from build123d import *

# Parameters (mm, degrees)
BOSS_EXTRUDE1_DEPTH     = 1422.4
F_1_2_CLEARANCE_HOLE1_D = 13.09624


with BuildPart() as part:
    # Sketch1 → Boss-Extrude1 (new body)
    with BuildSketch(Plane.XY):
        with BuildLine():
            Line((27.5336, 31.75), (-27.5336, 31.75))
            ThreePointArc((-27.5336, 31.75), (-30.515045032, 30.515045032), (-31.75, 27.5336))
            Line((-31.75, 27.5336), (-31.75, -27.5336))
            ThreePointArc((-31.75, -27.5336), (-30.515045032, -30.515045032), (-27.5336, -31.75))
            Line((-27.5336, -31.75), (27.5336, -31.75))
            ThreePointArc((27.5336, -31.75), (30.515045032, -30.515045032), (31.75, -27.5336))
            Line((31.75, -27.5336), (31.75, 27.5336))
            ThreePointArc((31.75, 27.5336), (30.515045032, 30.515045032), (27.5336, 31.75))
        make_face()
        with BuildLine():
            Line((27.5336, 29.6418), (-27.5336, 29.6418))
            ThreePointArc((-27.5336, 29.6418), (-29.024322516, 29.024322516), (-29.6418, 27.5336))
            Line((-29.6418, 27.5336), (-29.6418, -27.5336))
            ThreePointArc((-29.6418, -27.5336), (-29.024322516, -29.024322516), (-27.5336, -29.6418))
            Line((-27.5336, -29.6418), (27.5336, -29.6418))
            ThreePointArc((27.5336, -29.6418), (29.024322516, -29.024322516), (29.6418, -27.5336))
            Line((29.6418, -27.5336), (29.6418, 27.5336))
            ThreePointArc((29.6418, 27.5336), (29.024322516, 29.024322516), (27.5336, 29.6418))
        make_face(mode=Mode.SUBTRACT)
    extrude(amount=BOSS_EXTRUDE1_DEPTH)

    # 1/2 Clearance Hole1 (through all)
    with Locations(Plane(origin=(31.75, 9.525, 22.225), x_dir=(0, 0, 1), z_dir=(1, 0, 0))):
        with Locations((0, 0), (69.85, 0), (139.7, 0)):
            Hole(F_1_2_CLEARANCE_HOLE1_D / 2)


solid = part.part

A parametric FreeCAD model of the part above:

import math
import FreeCAD as App
import Part
import Sketcher
from FreeCAD import Vector
Q = App.Units.Quantity

doc = App.newDocument("Part")
body = doc.addObject("PartDesign::Body", "Body")

# Sketch on XY plane
sketch1 = body.newObject("Sketcher::SketchObject", "Sketch")
sketch1.AttachmentSupport = (doc.getObject("XY_Plane"), [""])
sketch1.MapMode = "FlatFace"
sketch1.addGeometry([
    Part.LineSegment(Vector(27.5, 31.8, 0), Vector(-27.5, 31.8, 0)),  # 0
    Part.ArcOfCircle(Part.Circle(Vector(-27.5, 27.5, 0), Vector(0, 0, 1), 4.2), math.radians(90), math.radians(180)),  # 1
    Part.LineSegment(Vector(-31.8, 27.5, 0), Vector(-31.8, -27.5, 0)),  # 2
    Part.ArcOfCircle(Part.Circle(Vector(-27.5, -27.5, 0), Vector(0, 0, 1), 4.2), math.radians(-180), math.radians(-90)),  # 3
    Part.LineSegment(Vector(-27.5, -31.8, 0), Vector(27.5, -31.8, 0)),  # 4
    Part.ArcOfCircle(Part.Circle(Vector(27.5, -27.5, 0), Vector(0, 0, 1), 4.2), math.radians(-90), math.radians(0)),  # 5
    Part.LineSegment(Vector(31.8, -27.5, 0), Vector(31.8, 27.5, 0)),  # 6
    Part.ArcOfCircle(Part.Circle(Vector(27.5, 27.5, 0), Vector(0, 0, 1), 4.2), math.radians(0), math.radians(90)),  # 7
    Part.LineSegment(Vector(-27.5, 29.6, 0), Vector(27.5, 29.6, 0)),  # 8
    Part.ArcOfCircle(Part.Circle(Vector(27.5, 27.5, 0), Vector(0, 0, 1), 2.1), math.radians(0), math.radians(90)),  # 9
    Part.LineSegment(Vector(29.6, 27.5, 0), Vector(29.6, -27.5, 0)),  # 10
    Part.ArcOfCircle(Part.Circle(Vector(27.5, -27.5, 0), Vector(0, 0, 1), 2.1), math.radians(-90), math.radians(0)),  # 11
    Part.LineSegment(Vector(27.5, -29.6, 0), Vector(-27.5, -29.6, 0)),  # 12
    Part.ArcOfCircle(Part.Circle(Vector(-27.5, -27.5, 0), Vector(0, 0, 1), 2.1), math.radians(180), math.radians(270)),  # 13
    Part.LineSegment(Vector(-29.6, -27.5, 0), Vector(-29.6, 27.5, 0)),  # 14
    Part.ArcOfCircle(Part.Circle(Vector(-27.5, 27.5, 0), Vector(0, 0, 1), 2.1), math.radians(90), math.radians(180)),  # 15
], False)
sketch1.addConstraint([
    Sketcher.Constraint("Tangent", 0, 2, 1, 1),
    Sketcher.Constraint("Tangent", 1, 2, 2, 1),
    Sketcher.Constraint("Tangent", 2, 2, 3, 1),
    Sketcher.Constraint("Tangent", 3, 2, 4, 1),
    Sketcher.Constraint("Tangent", 4, 2, 5, 1),
    Sketcher.Constraint("Tangent", 5, 2, 6, 1),
    Sketcher.Constraint("Tangent", 6, 2, 7, 1),
    Sketcher.Constraint("Tangent", 7, 2, 0, 1),
    Sketcher.Constraint("Tangent", 8, 2, 9, 2),
    Sketcher.Constraint("Tangent", 9, 1, 10, 1),
    Sketcher.Constraint("Tangent", 10, 2, 11, 2),
    Sketcher.Constraint("Tangent", 11, 1, 12, 1),
    Sketcher.Constraint("Tangent", 12, 2, 13, 2),
    Sketcher.Constraint("Tangent", 13, 1, 14, 1),
    Sketcher.Constraint("Tangent", 14, 2, 15, 2),
    Sketcher.Constraint("Tangent", 15, 1, 8, 1),
    Sketcher.Constraint("Horizontal", 0),
    Sketcher.Constraint("Vertical", 2),
    Sketcher.Constraint("Horizontal", 4),
    Sketcher.Constraint("Vertical", 6),
    Sketcher.Constraint("Horizontal", 8),
    Sketcher.Constraint("Vertical", 10),
    Sketcher.Constraint("Horizontal", 12),
    Sketcher.Constraint("Vertical", 14),
    Sketcher.Constraint("Coincident", 9, 3, 7, 3),
    Sketcher.Constraint("Coincident", 11, 3, 5, 3),
    Sketcher.Constraint("Coincident", 13, 3, 3, 3),
    Sketcher.Constraint("Equal", 1, 3),
    Sketcher.Constraint("Equal", 3, 5),
    Sketcher.Constraint("Equal", 5, 7),
    Sketcher.Constraint("Equal", 13, 15),
    Sketcher.Constraint("Symmetric", 1, 3, 5, 3, -1, 1),
    Sketcher.Constraint("Equal", 12, 2),
    Sketcher.Constraint("Radius", 1, Q("0.166 in")),
    Sketcher.Constraint("Radius", 9, Q("0.083 in")),
    Sketcher.Constraint("DistanceX", 0, 2, 0, 1, Q("2.168 in")),
])
pad1 = body.newObject("PartDesign::Pad", "Pad")
pad1.Profile = sketch1
pad1.Length = Q("56 in")

# Sketch on YZ plane
sketch2 = body.newObject("Sketcher::SketchObject", "Sketch001")
sketch2.AttachmentSupport = (doc.getObject("YZ_Plane"), [""])
sketch2.MapMode = "FlatFace"
sketch2.AttachmentOffset = App.Placement(Vector(0, 0, 1.25 * 25.4), App.Rotation())
sketch2.addGeometry([
    Part.Circle(Vector(10, 22, 0), Vector(0, 0, 1), 7),
    Part.Circle(Vector(10, 92, 0), Vector(0, 0, 1), 7),
    Part.Circle(Vector(10, 162, 0), Vector(0, 0, 1), 7),
], False)
sketch2.addConstraint([
    Sketcher.Constraint("Equal", 0, 1),
    Sketcher.Constraint("Equal", 1, 2),
    Sketcher.Constraint("Vertical", 0, 3, 1, 3),
    Sketcher.Constraint("Vertical", 1, 3, 2, 3),
    Sketcher.Constraint("Diameter", 0, Q("0.5156 in")),
    Sketcher.Constraint("DistanceY", 0, 3, 2, 3, Q("5.5 in")),
    Sketcher.Constraint("DistanceY", 0, 3, 1, 3, Q("2.75 in")),
    Sketcher.Constraint("DistanceX", -1, 1, 0, 3, Q("0.375 in")),
    Sketcher.Constraint("DistanceY", -1, 1, 0, 3, Q("0.875 in")),
])
doc.recompute()
hole = body.newObject("PartDesign::Hole", "Hole")
hole.Profile = sketch2
hole.ThreadType = "None"
hole.Diameter = Q("0.5156 in")
hole.DepthType = "ThroughAll"

doc.recompute()
